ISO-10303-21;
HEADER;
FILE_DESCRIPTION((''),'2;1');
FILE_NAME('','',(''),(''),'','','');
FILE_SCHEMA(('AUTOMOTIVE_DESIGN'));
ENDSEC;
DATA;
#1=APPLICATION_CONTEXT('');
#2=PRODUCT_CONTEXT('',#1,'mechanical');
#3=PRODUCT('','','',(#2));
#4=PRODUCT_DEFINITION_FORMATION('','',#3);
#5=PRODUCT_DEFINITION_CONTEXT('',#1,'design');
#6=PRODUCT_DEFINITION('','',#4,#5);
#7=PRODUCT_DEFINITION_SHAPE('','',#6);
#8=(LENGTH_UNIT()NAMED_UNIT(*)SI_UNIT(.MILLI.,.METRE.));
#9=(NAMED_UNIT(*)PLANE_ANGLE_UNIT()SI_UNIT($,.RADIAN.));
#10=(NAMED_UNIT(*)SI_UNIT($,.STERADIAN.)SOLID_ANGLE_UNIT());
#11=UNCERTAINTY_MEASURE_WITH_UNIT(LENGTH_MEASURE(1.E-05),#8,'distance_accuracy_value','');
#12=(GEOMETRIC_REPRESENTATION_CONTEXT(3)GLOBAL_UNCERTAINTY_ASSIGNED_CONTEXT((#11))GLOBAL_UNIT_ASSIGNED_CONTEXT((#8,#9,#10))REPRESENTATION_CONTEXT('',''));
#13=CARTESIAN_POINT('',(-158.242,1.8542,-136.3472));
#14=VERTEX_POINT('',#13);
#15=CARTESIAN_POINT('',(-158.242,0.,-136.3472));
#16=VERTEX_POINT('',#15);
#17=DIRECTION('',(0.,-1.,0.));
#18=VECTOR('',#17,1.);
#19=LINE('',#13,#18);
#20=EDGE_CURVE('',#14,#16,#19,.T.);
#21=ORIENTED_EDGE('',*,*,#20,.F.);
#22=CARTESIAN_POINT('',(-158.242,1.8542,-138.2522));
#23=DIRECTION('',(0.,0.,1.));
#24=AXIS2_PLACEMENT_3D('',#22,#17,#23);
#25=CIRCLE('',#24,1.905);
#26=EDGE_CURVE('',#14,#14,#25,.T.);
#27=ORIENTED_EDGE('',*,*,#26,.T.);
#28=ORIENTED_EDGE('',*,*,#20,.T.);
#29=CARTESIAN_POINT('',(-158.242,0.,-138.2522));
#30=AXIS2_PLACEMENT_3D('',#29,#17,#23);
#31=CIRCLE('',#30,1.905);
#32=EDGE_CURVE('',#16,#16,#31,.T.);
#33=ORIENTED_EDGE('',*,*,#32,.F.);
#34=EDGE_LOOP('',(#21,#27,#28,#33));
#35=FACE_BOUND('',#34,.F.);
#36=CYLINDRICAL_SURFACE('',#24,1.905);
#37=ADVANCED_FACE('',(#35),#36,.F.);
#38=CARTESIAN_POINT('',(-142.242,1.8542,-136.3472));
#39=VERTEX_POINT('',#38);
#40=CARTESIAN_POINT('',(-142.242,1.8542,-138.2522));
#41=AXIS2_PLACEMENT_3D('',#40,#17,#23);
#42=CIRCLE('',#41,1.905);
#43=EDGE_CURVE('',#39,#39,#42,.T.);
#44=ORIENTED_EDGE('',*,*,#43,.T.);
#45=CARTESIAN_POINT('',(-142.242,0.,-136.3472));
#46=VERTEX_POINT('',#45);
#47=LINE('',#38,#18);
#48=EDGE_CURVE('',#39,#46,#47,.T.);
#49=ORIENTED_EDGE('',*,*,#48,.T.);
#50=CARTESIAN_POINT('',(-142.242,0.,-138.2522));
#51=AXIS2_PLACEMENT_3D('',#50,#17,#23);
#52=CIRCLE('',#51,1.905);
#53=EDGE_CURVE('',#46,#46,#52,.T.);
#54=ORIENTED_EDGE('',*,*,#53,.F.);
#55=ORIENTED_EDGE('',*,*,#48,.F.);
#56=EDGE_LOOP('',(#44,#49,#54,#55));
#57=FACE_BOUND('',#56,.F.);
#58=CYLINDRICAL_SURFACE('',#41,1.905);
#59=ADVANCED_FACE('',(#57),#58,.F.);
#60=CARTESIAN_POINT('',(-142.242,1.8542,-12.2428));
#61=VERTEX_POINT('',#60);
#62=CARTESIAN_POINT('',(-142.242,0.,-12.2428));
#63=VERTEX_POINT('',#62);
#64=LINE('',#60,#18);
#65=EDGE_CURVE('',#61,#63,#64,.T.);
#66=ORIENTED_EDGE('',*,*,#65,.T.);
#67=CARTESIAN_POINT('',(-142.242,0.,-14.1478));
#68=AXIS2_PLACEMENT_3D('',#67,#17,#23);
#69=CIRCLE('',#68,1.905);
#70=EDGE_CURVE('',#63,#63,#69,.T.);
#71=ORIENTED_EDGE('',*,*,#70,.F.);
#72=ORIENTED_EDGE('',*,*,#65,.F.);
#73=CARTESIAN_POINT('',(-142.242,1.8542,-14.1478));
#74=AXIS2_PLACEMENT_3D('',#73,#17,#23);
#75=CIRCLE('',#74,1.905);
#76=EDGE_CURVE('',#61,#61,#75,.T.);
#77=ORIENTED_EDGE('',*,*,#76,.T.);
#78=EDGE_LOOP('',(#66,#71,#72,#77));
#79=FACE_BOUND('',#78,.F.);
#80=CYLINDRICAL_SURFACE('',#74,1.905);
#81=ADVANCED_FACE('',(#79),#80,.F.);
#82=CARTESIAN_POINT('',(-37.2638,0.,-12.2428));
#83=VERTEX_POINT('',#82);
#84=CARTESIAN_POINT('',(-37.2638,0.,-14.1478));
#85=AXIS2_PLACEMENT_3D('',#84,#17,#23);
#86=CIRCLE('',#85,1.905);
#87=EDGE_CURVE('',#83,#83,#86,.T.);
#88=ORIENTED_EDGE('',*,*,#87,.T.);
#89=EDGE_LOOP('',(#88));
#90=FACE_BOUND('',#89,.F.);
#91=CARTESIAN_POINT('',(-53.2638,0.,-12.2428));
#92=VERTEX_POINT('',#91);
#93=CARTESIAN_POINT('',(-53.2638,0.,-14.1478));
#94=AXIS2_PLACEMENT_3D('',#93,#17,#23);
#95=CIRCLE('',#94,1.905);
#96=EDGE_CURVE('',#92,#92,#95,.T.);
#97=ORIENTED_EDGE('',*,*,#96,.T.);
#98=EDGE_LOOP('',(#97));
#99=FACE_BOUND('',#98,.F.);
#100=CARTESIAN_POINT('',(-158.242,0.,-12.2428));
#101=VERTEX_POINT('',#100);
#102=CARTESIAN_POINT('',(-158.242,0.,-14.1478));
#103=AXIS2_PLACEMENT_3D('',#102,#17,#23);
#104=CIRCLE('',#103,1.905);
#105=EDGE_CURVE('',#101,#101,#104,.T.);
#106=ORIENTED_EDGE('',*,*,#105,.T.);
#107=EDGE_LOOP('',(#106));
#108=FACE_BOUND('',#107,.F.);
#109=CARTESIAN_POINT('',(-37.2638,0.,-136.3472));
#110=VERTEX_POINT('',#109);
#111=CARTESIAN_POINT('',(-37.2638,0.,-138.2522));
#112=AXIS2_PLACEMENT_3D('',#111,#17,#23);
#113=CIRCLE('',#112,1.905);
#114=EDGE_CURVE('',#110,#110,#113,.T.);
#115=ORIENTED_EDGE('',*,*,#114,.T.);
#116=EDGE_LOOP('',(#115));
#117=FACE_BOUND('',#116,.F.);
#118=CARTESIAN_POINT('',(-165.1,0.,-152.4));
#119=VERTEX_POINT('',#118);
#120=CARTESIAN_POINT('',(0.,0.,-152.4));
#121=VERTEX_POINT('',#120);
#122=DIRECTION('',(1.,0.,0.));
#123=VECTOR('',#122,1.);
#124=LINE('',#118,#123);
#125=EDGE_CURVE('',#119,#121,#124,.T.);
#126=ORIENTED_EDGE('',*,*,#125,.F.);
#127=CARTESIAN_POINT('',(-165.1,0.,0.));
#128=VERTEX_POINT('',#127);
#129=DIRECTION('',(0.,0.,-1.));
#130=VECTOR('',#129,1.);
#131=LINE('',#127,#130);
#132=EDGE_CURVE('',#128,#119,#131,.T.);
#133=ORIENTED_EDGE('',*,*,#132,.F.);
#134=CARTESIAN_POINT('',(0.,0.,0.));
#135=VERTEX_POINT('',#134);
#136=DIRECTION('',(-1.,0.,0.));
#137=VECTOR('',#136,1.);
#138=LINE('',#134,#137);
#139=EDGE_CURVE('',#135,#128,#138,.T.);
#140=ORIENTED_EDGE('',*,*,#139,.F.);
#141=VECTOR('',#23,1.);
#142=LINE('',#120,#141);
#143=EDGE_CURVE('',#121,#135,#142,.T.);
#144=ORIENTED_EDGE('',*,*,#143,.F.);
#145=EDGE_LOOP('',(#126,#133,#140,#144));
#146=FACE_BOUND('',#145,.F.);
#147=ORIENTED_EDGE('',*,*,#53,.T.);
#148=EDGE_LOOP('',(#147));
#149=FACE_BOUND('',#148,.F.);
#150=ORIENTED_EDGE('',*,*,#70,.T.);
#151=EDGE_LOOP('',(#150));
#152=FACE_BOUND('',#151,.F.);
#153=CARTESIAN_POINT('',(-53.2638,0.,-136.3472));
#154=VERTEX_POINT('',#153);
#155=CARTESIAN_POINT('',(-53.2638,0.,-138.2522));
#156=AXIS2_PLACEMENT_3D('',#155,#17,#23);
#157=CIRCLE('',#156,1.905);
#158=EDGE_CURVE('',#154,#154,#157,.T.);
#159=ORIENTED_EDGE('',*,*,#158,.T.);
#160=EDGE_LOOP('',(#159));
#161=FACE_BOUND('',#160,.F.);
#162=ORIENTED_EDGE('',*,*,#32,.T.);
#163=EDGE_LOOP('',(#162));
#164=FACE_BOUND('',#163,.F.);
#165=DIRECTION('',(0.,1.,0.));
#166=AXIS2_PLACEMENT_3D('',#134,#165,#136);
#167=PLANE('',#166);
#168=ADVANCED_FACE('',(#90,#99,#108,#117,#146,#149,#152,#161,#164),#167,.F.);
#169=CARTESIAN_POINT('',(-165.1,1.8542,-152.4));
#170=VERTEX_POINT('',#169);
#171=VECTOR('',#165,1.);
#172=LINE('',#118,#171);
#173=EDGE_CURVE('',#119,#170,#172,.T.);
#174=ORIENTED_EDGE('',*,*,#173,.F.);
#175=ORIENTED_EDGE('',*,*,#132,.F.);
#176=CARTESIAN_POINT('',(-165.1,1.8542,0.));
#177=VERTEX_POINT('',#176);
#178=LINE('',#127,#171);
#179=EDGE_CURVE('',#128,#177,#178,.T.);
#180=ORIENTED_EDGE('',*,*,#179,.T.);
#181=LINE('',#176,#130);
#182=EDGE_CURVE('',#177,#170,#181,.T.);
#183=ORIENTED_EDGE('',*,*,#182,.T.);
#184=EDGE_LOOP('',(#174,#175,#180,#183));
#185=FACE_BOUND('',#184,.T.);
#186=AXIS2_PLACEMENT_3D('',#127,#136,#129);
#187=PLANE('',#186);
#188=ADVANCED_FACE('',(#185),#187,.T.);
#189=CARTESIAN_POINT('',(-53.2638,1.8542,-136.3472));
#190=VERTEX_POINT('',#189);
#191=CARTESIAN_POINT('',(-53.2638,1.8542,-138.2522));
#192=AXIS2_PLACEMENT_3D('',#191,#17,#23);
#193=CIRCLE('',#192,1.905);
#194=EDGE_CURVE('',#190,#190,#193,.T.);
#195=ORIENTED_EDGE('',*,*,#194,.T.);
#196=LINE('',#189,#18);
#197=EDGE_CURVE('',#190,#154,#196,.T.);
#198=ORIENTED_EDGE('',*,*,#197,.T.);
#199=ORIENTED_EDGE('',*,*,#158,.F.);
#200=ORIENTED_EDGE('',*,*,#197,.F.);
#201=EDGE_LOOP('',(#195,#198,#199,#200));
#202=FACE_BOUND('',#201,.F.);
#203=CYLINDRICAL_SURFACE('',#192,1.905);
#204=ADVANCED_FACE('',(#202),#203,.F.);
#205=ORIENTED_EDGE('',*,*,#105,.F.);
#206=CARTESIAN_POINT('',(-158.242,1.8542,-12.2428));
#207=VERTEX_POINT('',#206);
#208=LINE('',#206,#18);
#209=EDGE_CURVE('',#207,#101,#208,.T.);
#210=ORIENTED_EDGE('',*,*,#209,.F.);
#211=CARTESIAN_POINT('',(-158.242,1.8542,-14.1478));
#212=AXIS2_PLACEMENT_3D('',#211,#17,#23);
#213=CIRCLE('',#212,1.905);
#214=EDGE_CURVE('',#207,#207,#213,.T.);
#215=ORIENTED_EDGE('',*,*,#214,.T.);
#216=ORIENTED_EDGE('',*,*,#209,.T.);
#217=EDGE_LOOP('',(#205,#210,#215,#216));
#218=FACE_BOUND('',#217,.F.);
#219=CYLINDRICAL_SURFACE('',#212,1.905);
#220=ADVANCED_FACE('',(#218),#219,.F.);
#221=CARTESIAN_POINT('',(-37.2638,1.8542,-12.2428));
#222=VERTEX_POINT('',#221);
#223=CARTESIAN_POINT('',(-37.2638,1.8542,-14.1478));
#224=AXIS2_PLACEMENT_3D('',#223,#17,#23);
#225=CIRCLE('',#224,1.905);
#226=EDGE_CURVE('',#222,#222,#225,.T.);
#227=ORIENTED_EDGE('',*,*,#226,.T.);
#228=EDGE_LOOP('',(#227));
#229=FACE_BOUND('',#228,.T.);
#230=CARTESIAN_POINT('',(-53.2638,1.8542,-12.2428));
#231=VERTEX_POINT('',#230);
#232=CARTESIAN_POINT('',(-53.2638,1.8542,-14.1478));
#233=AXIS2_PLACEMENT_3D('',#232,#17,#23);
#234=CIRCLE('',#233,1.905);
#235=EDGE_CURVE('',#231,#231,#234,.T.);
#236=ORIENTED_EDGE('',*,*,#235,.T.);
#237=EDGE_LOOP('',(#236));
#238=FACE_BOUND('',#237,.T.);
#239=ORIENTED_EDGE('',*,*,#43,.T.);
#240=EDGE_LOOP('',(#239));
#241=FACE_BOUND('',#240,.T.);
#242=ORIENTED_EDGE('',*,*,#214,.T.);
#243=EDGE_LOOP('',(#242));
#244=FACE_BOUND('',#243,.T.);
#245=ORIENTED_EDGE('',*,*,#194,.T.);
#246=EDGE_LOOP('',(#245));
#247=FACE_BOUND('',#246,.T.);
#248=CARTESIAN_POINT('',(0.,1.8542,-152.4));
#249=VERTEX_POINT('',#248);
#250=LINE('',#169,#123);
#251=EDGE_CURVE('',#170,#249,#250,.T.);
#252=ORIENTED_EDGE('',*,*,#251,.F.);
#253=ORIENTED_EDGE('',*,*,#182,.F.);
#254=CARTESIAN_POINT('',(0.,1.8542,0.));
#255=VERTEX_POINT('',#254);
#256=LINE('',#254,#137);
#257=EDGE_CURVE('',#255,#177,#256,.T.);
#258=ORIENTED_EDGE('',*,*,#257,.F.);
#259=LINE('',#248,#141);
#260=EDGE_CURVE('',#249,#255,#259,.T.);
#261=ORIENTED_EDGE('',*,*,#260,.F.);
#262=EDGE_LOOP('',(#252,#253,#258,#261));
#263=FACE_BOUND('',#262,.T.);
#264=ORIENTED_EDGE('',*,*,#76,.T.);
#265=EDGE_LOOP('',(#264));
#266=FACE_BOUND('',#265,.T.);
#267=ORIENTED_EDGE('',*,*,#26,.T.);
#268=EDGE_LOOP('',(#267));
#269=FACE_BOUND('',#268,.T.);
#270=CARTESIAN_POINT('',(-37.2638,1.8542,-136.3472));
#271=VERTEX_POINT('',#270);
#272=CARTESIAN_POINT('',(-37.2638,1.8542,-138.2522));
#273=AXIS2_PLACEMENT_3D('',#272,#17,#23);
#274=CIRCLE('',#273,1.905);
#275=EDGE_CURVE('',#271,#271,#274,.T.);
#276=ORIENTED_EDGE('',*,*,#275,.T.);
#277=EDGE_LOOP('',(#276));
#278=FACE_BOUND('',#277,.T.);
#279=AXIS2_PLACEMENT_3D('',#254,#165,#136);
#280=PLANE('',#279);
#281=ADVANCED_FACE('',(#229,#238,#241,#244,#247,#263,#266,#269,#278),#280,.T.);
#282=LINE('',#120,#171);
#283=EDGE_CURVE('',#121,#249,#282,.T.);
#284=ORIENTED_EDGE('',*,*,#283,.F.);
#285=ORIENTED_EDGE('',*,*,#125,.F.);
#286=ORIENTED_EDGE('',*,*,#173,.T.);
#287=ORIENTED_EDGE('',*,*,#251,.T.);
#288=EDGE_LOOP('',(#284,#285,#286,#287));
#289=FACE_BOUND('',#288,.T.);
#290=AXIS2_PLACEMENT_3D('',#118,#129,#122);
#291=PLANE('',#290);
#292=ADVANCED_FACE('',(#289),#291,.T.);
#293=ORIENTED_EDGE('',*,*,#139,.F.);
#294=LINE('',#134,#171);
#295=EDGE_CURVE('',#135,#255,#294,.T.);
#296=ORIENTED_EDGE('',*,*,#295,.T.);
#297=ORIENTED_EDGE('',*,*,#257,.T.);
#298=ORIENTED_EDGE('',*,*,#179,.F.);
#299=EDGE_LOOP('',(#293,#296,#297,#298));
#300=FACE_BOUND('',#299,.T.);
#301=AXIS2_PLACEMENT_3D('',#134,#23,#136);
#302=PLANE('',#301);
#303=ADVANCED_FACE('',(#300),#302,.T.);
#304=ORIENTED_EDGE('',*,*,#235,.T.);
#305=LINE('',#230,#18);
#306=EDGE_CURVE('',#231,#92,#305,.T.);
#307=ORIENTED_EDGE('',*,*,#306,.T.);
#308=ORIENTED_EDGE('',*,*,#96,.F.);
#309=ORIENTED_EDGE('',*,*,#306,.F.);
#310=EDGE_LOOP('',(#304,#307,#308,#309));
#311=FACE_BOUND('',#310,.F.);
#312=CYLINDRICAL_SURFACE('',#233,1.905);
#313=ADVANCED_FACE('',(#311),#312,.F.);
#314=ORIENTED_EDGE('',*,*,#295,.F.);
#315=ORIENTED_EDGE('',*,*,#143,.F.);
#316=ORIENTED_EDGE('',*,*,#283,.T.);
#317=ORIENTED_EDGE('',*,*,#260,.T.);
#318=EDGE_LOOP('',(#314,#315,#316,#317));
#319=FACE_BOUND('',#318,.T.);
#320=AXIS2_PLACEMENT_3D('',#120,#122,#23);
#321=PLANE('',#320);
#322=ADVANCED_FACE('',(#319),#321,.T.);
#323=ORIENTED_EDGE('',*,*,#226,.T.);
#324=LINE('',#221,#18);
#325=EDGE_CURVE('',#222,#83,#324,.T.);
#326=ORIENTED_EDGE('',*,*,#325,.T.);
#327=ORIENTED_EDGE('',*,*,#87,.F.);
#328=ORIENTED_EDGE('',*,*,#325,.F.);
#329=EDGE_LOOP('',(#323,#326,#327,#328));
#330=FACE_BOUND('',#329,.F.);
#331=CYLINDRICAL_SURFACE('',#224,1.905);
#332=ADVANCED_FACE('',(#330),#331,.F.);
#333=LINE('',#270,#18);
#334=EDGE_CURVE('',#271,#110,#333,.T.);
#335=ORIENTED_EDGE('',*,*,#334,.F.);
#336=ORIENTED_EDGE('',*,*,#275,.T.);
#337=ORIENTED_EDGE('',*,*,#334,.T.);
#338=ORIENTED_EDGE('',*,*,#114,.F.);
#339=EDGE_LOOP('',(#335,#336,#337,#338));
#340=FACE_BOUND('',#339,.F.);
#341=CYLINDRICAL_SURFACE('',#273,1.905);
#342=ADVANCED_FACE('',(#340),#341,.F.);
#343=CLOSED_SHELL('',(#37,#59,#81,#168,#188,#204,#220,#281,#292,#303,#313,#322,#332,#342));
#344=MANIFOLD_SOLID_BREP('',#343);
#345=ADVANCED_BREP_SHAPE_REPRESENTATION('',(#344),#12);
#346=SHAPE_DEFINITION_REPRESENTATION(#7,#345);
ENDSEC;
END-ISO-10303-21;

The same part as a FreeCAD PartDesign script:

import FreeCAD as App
import Part
import Sketcher
from FreeCAD import Vector
Q = App.Units.Quantity

doc = App.newDocument("Part")
body = doc.addObject("PartDesign::Body", "Body")

# Sketch on XZ plane
sketch1 = doc.addObject("Sketcher::SketchObject", "Sketch")
body.addObject(sketch1)
sketch1.AttachmentSupport = (doc.XZ_Plane, [""])
sketch1.MapMode = "FlatFace"
sketch1.addGeometry(Part.LineSegment(Vector(-165.1, 0, 0), Vector(0, 0, 0)), False)
sketch1.addGeometry(Part.LineSegment(Vector(0, 0, 0), Vector(0, -152.4, 0)), False)
sketch1.addGeometry(Part.LineSegment(Vector(0, -152.4, 0), Vector(-165.1, -152.4, 0)), False)
sketch1.addGeometry(Part.LineSegment(Vector(-165.1, -152.4, 0), Vector(-165.1, 0, 0)), False)
sketch1.addConstraint(Sketcher.Constraint("Coincident", 0, 2, 1, 1))
sketch1.addConstraint(Sketcher.Constraint("Coincident", 1, 2, 2, 1))
sketch1.addConstraint(Sketcher.Constraint("Coincident", 2, 2, 3, 1))
sketch1.addConstraint(Sketcher.Constraint("Coincident", 3, 2, 0, 1))
sketch1.addConstraint(Sketcher.Constraint("Horizontal", 0))
sketch1.addConstraint(Sketcher.Constraint("Vertical", 1))
sketch1.addConstraint(Sketcher.Constraint("Horizontal", 2))
sketch1.addConstraint(Sketcher.Constraint("Vertical", 3))
sketch1.addConstraint(Sketcher.Constraint("Coincident", 0, 2, -1, 1))
sketch1.addConstraint(Sketcher.Constraint("DistanceY", 1, 2, 1, 1, Q("6 in")))
sketch1.addConstraint(Sketcher.Constraint("DistanceX", 0, 1, 0, 2, Q("6.5 in")))
pad1 = doc.addObject("PartDesign::Pad", "Pad")
body.addObject(pad1)
pad1.Profile = sketch1
pad1.Length = Q("0.073 in")
pad1.Reversed = True

# Sketch on XZ plane
sketch2 = doc.addObject("Sketcher::SketchObject", "Sketch001")
body.addObject(sketch2)
sketch2.AttachmentSupport = (doc.XZ_Plane, [""])
sketch2.MapMode = "FlatFace"
sketch2.AttachmentOffset = App.Placement(Vector(0, 0, -0.073 * 25.4), App.Rotation())
sketch2.addGeometry(Part.Circle(Vector(-158.242, -14.1478, 0), Vector(0, 0, 1), 1.905), False)
sketch2.addGeometry(Part.Circle(Vector(-142.242, -14.1478, 0), Vector(0, 0, 1), 1.905), False)
sketch2.addGeometry(Part.Circle(Vector(-53.2638, -14.1478, 0), Vector(0, 0, 1), 1.905), False)
sketch2.addGeometry(Part.Circle(Vector(-37.2638, -14.1478, 0), Vector(0, 0, 1), 1.905), False)
sketch2.addGeometry(Part.Circle(Vector(-37.2638, -138.2522, 0), Vector(0, 0, 1), 1.905), False)
sketch2.addGeometry(Part.Circle(Vector(-53.2638, -138.2522, 0), Vector(0, 0, 1), 1.905), False)
sketch2.addGeometry(Part.Circle(Vector(-142.242, -138.2522, 0), Vector(0, 0, 1), 1.905), False)
sketch2.addGeometry(Part.Circle(Vector(-158.242, -138.2522, 0), Vector(0, 0, 1), 1.905), False)
sketch2.addConstraint(Sketcher.Constraint("Equal", 0, 1))
sketch2.addConstraint(Sketcher.Constraint("Equal", 1, 2))
sketch2.addConstraint(Sketcher.Constraint("Equal", 2, 3))
sketch2.addConstraint(Sketcher.Constraint("Equal", 3, 4))
sketch2.addConstraint(Sketcher.Constraint("Equal", 4, 5))
sketch2.addConstraint(Sketcher.Constraint("Equal", 5, 6))
sketch2.addConstraint(Sketcher.Constraint("Equal", 6, 7))
sketch2.addConstraint(Sketcher.Constraint("Horizontal", 0, 3, 1, 3))
sketch2.addConstraint(Sketcher.Constraint("Horizontal", 1, 3, 2, 3))
sketch2.addConstraint(Sketcher.Constraint("Horizontal", 2, 3, 3, 3))
sketch2.addConstraint(Sketcher.Constraint("Horizontal", 4, 3, 5, 3))
sketch2.addConstraint(Sketcher.Constraint("Horizontal", 5, 3, 6, 3))
sketch2.addConstraint(Sketcher.Constraint("Horizontal", 6, 3, 7, 3))
sketch2.addConstraint(Sketcher.Constraint("Vertical", 3, 3, 4, 3))
sketch2.addConstraint(Sketcher.Constraint("Vertical", 2, 3, 5, 3))
sketch2.addConstraint(Sketcher.Constraint("Vertical", 1, 3, 6, 3))
sketch2.addConstraint(Sketcher.Constraint("Vertical", 0, 3, 7, 3))
sketch2.addConstraint(Sketcher.Constraint("Diameter", 0, Q("0.15 in")))
sketch2.addConstraint(Sketcher.Constraint("DistanceX", 0, 3, -1, 1, Q("6.23 in")))
sketch2.addConstraint(Sketcher.Constraint("DistanceY", 0, 3, -1, 1, Q("0.557 in")))
sketch2.addConstraint(Sketcher.Constraint("DistanceX", 2, 3, -1, 1, Q("2.097 in")))
sketch2.addConstraint(Sketcher.Constraint("DistanceY", 4, 3, -1, 1, Q("5.443 in")))
sketch2.addConstraint(Sketcher.Constraint("DistanceX", 1, 3, 3, 3, Q("4.133 in")))
sketch2.addConstraint(Sketcher.Constraint("DistanceX", 1, 3, -1, 1, Q("142.242 mm")))
doc.recompute()
hole = doc.addObject("PartDesign::Hole", "Hole")
body.addObject(hole)
hole.Profile = sketch2
hole.ThreadType = "None"
hole.Diameter = Q("0.15 in")
hole.DepthType = "Dimension"
hole.Depth = Q("0.432 in")
hole.DrillPoint = "Angled"
hole.DrillPointAngle = 118
hole.Reversed = True

doc.recompute()
